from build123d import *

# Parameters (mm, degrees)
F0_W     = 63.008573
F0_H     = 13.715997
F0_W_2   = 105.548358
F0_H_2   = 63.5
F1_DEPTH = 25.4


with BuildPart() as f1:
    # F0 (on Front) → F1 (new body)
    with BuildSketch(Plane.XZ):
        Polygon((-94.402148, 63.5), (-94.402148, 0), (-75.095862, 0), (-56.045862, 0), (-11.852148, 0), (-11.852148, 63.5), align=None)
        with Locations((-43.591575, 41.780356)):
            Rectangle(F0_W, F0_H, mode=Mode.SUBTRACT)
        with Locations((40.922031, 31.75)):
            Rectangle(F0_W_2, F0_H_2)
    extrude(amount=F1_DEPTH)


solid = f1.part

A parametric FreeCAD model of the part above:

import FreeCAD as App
import Part
import Sketcher
from FreeCAD import Vector
Q = App.Units.Quantity


def add_polygon(sketch, points):
    """Adds a closed chain of lines whose ends are joined by coincident constraints."""
    first, n = sketch.GeometryCount, len(points)
    for a, b in zip(points, points[1:] + points[:1]):
        sketch.addGeometry(Part.LineSegment(App.Vector(*a, 0), App.Vector(*b, 0)), False)
    for i in range(n):
        sketch.addConstraint(Sketcher.Constraint("Coincident", first + i, 2, first + (i + 1) % n, 1))

doc = App.newDocument("Part")
body = doc.addObject("PartDesign::Body", "Body")

# Sketch on XZ plane
sketch1 = body.newObject("Sketcher::SketchObject", "Sketch")
sketch1.AttachmentSupport = (doc.getObject("XZ_Plane"), [""])
sketch1.MapMode = "FlatFace"
add_polygon(sketch1, [(-94, 64), (-94, 0), (94, 0), (94, 64)])  # lines 0-3
add_polygon(sketch1, [(-12, 35), (-75, 35), (-75, 49), (-12, 49)])  # lines 4-7
sketch1.addConstraint(Sketcher.Constraint("Vertical", 0))
sketch1.addConstraint(Sketcher.Constraint("Horizontal", 1))
sketch1.addConstraint(Sketcher.Constraint("Vertical", 2))
sketch1.addConstraint(Sketcher.Constraint("Horizontal", 3))
sketch1.addConstraint(Sketcher.Constraint("Horizontal", 4))
sketch1.addConstraint(Sketcher.Constraint("Vertical", 5))
sketch1.addConstraint(Sketcher.Constraint("Horizontal", 6))
sketch1.addConstraint(Sketcher.Constraint("Vertical", 7))
sketch1.addConstraint(Sketcher.Constraint("PointOnObject", 0, 2, -1))
sketch1.addConstraint(Sketcher.Constraint("DistanceY", 0, 2, 0, 1, Q("2.5 in")))
sketch1.addConstraint(Sketcher.Constraint("DistanceY", 5, 1, 5, 2, Q("0.5399999 in")))
sketch1.addConstraint(Sketcher.Constraint("DistanceX", 6, 2, 2, 2, Q("105.783498 mm")))
sketch1.addConstraint(Sketcher.Constraint("DistanceX", 1, 1, 1, 2, Q("188.098358 mm")))
sketch1.addConstraint(Sketcher.Constraint("DistanceX", 4, 2, 4, 1, Q("63.008573 mm")))
sketch1.addConstraint(Sketcher.Constraint("DistanceX", -1, 1, 1, 2, Q("93.69621 mm")))
sketch1.addConstraint(Sketcher.Constraint("DistanceY", -1, 1, 4, 2, Q("34.922357 mm")))
pad1 = body.newObject("PartDesign::Pad", "Pad")
pad1.Profile = sketch1
pad1.Length = Q("1 in")

doc.recompute()
